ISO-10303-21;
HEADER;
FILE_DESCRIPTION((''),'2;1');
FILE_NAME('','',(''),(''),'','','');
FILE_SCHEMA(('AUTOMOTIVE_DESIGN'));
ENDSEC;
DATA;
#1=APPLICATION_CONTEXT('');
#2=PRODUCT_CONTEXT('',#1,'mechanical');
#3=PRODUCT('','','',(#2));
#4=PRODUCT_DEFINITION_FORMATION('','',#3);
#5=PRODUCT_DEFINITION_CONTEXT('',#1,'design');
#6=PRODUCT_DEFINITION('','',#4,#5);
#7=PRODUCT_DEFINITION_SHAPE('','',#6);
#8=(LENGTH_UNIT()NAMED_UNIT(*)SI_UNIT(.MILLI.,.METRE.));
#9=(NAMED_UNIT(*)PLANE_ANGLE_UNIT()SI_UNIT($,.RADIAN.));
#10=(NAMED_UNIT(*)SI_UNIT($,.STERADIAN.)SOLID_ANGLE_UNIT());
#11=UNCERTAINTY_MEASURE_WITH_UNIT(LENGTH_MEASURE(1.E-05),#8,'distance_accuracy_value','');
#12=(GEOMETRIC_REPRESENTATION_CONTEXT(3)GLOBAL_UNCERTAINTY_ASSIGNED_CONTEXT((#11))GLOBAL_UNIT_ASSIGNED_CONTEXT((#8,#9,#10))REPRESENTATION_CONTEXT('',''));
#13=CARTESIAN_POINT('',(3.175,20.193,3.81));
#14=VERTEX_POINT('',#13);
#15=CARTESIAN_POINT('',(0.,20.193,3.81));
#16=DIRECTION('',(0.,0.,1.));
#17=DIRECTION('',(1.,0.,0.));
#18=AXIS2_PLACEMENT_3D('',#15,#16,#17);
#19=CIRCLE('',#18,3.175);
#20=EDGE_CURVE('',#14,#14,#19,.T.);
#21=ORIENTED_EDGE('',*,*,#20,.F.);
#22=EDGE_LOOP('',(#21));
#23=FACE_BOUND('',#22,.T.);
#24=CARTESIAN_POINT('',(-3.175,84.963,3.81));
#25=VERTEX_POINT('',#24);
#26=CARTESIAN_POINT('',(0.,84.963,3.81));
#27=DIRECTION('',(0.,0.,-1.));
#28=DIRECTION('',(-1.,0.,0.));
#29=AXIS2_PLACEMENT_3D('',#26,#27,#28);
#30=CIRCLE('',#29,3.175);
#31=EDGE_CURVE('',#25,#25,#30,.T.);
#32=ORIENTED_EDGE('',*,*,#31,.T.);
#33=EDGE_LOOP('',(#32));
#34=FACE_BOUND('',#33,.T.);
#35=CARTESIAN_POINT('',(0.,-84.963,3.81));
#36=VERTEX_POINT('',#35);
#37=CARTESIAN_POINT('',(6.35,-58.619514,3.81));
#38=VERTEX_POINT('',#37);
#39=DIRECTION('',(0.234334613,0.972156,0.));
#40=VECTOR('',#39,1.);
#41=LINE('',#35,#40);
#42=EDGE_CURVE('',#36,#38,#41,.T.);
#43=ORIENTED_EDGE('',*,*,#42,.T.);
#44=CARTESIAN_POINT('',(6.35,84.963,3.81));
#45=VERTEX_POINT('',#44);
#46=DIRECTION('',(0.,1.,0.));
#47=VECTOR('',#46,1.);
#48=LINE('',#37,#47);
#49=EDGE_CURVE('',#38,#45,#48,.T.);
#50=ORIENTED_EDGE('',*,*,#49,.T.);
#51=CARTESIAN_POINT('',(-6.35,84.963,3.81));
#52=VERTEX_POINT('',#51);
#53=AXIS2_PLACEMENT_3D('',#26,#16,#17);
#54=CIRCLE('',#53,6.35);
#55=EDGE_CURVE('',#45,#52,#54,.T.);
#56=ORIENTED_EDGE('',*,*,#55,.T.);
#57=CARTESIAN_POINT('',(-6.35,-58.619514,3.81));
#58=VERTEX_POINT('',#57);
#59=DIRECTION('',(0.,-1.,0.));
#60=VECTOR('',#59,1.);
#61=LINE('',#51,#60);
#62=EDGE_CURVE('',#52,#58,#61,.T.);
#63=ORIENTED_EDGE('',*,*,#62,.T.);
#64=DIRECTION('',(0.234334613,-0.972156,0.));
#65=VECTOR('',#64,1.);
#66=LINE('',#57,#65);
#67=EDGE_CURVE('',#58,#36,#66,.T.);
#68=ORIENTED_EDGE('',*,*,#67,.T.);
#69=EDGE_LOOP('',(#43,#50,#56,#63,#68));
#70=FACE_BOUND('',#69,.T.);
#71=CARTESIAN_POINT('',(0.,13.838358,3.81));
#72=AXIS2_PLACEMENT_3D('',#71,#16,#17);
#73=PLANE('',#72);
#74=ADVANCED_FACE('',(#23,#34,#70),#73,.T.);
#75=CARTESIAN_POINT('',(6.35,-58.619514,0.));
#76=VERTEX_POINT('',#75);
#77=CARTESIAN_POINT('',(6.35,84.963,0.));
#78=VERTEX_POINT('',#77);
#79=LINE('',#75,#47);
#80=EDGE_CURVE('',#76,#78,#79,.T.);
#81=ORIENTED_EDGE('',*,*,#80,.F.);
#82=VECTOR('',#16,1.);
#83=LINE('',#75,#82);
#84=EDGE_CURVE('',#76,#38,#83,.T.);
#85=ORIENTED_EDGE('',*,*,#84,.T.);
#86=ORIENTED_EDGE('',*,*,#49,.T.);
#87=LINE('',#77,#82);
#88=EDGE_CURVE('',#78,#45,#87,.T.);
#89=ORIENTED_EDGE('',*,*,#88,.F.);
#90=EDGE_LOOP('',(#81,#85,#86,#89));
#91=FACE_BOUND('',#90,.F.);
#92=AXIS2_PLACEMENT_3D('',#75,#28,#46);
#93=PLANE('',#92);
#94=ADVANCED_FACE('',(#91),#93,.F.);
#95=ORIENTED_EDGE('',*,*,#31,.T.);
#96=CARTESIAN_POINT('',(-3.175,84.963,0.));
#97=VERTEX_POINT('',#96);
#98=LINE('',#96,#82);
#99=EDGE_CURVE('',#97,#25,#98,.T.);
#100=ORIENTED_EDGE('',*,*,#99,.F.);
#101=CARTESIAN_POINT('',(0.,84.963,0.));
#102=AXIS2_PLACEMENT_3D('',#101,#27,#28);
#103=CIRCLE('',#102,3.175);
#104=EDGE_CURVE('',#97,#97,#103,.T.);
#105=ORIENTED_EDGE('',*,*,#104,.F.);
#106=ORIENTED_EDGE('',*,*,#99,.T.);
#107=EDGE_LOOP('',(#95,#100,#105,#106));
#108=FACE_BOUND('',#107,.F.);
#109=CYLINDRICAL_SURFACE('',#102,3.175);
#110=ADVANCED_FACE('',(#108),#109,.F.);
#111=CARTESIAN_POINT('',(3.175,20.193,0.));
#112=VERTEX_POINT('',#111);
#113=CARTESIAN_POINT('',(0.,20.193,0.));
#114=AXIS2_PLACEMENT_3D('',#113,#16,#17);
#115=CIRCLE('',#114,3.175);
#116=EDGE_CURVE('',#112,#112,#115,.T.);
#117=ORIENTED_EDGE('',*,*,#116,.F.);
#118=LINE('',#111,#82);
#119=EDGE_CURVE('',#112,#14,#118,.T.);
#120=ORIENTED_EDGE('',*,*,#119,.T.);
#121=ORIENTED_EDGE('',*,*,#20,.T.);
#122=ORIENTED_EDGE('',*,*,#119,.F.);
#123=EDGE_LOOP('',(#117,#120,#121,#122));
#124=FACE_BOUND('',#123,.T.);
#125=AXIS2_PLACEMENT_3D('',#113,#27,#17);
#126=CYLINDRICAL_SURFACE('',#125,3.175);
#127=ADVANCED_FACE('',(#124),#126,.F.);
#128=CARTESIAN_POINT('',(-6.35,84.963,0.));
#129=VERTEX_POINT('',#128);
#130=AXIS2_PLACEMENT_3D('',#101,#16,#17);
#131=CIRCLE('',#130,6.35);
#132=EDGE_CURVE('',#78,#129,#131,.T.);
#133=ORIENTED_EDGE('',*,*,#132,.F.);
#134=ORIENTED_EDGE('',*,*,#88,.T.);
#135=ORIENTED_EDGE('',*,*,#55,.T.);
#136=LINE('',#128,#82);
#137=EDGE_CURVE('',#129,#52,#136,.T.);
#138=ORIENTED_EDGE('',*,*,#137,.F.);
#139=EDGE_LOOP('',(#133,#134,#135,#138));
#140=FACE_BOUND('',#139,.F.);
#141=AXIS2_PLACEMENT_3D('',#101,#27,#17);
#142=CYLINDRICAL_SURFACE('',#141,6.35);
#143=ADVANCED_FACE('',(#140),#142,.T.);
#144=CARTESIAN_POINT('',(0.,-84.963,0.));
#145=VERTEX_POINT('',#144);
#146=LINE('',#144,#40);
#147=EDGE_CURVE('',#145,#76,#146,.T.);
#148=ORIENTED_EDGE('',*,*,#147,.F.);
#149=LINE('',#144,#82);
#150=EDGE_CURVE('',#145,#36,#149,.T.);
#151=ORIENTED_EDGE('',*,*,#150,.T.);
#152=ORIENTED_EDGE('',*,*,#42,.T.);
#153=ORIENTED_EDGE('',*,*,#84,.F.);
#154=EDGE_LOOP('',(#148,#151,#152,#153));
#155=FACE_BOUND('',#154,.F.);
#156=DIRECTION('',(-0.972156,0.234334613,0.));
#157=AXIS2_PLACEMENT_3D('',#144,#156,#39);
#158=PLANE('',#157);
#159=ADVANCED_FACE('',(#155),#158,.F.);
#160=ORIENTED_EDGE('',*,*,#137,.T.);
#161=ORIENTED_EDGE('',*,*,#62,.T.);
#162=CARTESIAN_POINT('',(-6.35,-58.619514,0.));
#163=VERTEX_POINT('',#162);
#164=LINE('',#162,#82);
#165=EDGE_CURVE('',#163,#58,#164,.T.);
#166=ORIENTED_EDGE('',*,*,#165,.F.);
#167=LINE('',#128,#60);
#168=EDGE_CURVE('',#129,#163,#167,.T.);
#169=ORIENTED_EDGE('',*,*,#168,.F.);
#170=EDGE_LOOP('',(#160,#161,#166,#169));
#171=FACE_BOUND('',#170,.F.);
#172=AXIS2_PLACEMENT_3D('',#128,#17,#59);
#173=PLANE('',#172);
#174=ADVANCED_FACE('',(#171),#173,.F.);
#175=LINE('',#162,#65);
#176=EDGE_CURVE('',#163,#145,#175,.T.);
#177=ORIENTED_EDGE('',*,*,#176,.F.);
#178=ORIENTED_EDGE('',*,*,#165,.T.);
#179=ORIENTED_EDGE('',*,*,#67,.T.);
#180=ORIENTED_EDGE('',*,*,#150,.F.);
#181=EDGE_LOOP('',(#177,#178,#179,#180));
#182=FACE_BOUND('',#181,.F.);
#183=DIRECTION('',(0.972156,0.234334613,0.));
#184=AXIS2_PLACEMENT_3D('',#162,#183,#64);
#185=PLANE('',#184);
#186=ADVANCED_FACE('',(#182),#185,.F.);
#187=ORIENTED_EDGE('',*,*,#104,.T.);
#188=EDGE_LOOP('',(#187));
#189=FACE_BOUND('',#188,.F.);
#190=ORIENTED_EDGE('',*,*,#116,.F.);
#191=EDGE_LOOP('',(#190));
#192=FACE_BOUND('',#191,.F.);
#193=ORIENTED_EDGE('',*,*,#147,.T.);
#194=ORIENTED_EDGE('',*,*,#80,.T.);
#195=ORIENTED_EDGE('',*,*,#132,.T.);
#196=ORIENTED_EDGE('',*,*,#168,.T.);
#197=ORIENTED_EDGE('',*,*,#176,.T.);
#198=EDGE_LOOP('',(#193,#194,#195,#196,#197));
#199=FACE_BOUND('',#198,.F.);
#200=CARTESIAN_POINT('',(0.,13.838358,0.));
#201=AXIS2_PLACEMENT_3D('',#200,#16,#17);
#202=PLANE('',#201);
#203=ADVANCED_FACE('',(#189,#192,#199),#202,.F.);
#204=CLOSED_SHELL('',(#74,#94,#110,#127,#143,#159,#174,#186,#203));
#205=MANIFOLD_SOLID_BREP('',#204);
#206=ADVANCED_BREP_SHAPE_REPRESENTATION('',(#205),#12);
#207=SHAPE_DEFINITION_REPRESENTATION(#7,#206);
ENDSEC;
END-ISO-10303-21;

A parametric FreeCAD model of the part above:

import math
import FreeCAD as App
import Part
import Sketcher

V = App.Vector
Q = App.Units.Quantity

doc = App.newDocument("Part")
body = doc.addObject("PartDesign::Body", "Body")

sketch1 = body.newObject("Sketcher::SketchObject", "Sketch")
sketch1.AttachmentSupport = (doc.getObject("XY_Plane"), [""])
sketch1.MapMode = "FlatFace"
sketch1.addGeometry([
    Part.LineSegment(V(-6.3, 85, 0), V(-6.3, -58.6, 0)),
    Part.LineSegment(V(-6.3, -58.6, 0), V(0, -85, 0)),
    Part.LineSegment(V(0, -85, 0), V(6.3, -58.6, 0)),
    Part.LineSegment(V(6.3, -58.6, 0), V(6.3, 85, 0)),
    Part.ArcOfCircle(Part.Circle(V(0, 85, 0), V(0, 0, 1), 6.3), math.radians(0), math.radians(180)),
    Part.Circle(V(0, 85, 0), V(0, 0, 1), 3.2),
    Part.Circle(V(0, 20.2, 0), V(0, 0, 1), 3.2),
], False)
sketch1.addConstraint([
    Sketcher.Constraint("Coincident", 0, 2, 1, 1),
    Sketcher.Constraint("Coincident", 1, 2, 2, 1),
    Sketcher.Constraint("Coincident", 2, 2, 3, 1),
    Sketcher.Constraint("Tangent", 3, 2, 4, 1),
    Sketcher.Constraint("Tangent", 4, 2, 0, 1),
    Sketcher.Constraint("Vertical", 0),
    Sketcher.Constraint("Vertical", 3),
    Sketcher.Constraint("Coincident", 5, 3, 4, 3),
    Sketcher.Constraint("Equal", 5, 6),
    Sketcher.Constraint("Symmetric", 0, 2, 2, 2, -2),
    Sketcher.Constraint("PointOnObject", 6, 3, -2),
    Sketcher.Constraint("PointOnObject", 1, 2, -2),
    Sketcher.Constraint("Diameter", 5, Q("0.25 in")),
    Sketcher.Constraint("Radius", 4, Q("0.25 in")),
    Sketcher.Constraint("DistanceY", 6, 3, 4, 3, Q("2.55 in")),
    Sketcher.Constraint("DistanceY", 1, 2, 6, 3, Q("4.14 in")),
    Sketcher.Constraint("DistanceY", -1, 1, 4, 3, Q("3.345 in")),
    Sketcher.Constraint("DistanceY", 0, 2, 0, 1, 143.582514),
])
pad1 = body.newObject("PartDesign::Pad", "Pad")
pad1.Profile = sketch1
pad1.Length = Q("0.15 in")

doc.recompute()
